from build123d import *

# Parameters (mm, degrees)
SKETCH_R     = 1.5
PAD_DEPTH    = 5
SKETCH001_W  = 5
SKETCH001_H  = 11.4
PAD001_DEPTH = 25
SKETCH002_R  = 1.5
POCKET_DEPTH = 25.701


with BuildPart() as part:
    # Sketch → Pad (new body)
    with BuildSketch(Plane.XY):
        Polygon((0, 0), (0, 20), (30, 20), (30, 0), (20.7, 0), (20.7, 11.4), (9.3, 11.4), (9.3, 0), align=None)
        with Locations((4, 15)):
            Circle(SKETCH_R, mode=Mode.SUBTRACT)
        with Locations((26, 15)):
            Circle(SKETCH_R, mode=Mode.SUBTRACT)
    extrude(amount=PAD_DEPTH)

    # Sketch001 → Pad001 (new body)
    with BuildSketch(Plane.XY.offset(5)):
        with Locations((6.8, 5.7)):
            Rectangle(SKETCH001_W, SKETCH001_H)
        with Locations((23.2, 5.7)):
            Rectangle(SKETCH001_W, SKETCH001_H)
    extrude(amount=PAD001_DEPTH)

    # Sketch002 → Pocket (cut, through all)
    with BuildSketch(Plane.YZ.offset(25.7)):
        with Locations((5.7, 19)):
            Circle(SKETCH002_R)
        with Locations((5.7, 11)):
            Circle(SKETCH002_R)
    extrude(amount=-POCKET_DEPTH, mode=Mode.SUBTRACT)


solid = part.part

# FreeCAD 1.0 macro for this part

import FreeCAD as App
import Part
import Sketcher
from FreeCAD import Vector
Q = App.Units.Quantity


def add_polygon(sketch, points):
    """Adds a closed chain of lines whose ends are joined by coincident constraints."""
    first, n = sketch.GeometryCount, len(points)
    for a, b in zip(points, points[1:] + points[:1]):
        sketch.addGeometry(Part.LineSegment(App.Vector(*a, 0), App.Vector(*b, 0)), False)
    for i in range(n):
        sketch.addConstraint(Sketcher.Constraint("Coincident", first + i, 2, first + (i + 1) % n, 1))

doc = App.newDocument("Part")
params = doc.addObject("Spreadsheet::Sheet", "Params")
for row, (alias, value) in enumerate([
    ("sketch1_diameter", "3 mm"),
    ("sketch1_width", "30 mm"),
    ("sketch1_height", "20 mm"),
    ("sketch1_width2", "9.3 mm"),
    ("pad1_length", "5 mm"),
    ("sketch2_width", "5 mm"),
    ("sketch2_height", "11.4 mm"),
    ("pad2_length", "25 mm"),
    ("sketch3_diameter", "3 mm"),
], start=1):
    params.set(f"A{row}", alias)
    params.set(f"B{row}", "=" + value)
    params.setAlias(f"B{row}", alias)

body = doc.addObject("PartDesign::Body", "Body")

# Sketch on XY plane
sketch1 = body.newObject("Sketcher::SketchObject", "Sketch")
sketch1.AttachmentSupport = (doc.getObject("XY_Plane"), [""])
sketch1.MapMode = "FlatFace"
add_polygon(sketch1, [(0, 20), (0, 0), (9.3, 0), (9.3, 11.4), (20.7, 11.4), (20.7, 0), (30, 0), (30, 20)])  # lines 0-7
sketch1.addGeometry(Part.Circle(Vector(26, 15, 0), Vector(0, 0, 1), 1.5), False)  # 8
sketch1.addGeometry(Part.Circle(Vector(4, 15, 0), Vector(0, 0, 1), 1.5), False)  # 9
sketch1.addConstraint([
    Sketcher.Constraint("Vertical", 0),
    Sketcher.Constraint("Horizontal", 1),
    Sketcher.Constraint("Vertical", 2),
    Sketcher.Constraint("Horizontal", 3),
    Sketcher.Constraint("Vertical", 4),
    Sketcher.Constraint("Horizontal", 5),
    Sketcher.Constraint("Vertical", 6),
    Sketcher.Constraint("Horizontal", 7),
    Sketcher.Constraint("Coincident", 0, 2, -1, 1),
    Sketcher.Constraint("Equal", 8, 9),
    Sketcher.Constraint("PointOnObject", 4, 2, -1),
    Sketcher.Constraint("Horizontal", 8, 3, 9, 3),
    Sketcher.Constraint("Equal", 1, 5),
    Sketcher.Constraint("Equal", 3, 2),
    Sketcher.Constraint("Diameter", 8, Q("3 mm")),
    Sketcher.Constraint("DistanceX", 7, 2, 7, 1, Q("30 mm")),
    Sketcher.Constraint("DistanceY", 0, 2, 0, 1, Q("20 mm")),
    Sketcher.Constraint("DistanceX", 1, 1, 1, 2, Q("9.3 mm")),
    Sketcher.Constraint("DistanceX", -1, 1, 8, 3, Q("26 mm")),
    Sketcher.Constraint("DistanceY", -1, 1, 8, 3, Q("15 mm")),
    Sketcher.Constraint("DistanceX", -1, 1, 9, 3, Q("4 mm")),
])
sketch1.setExpression("Constraints[22]", "Params.sketch1_diameter")
sketch1.setExpression("Constraints[23]", "Params.sketch1_width")
sketch1.setExpression("Constraints[24]", "Params.sketch1_height")
sketch1.setExpression("Constraints[25]", "Params.sketch1_width2")
pad1 = body.newObject("PartDesign::Pad", "Pad")
pad1.Profile = sketch1
pad1.setExpression("Length", "Params.pad1_length")

# Sketch on XY plane
sketch2 = body.newObject("Sketcher::SketchObject", "Sketch001")
sketch2.AttachmentSupport = (doc.getObject("XY_Plane"), [""])
sketch2.MapMode = "FlatFace"
sketch2.AttachmentOffset = App.Placement(Vector(0, 0, 5), App.Rotation())
add_polygon(sketch2, [(4, 11), (4, 0), (9, 0), (9, 11)])  # lines 0-3
add_polygon(sketch2, [(21, 11), (21, 0), (26, 0), (26, 11)])  # lines 4-7
sketch2.addConstraint([
    Sketcher.Constraint("Vertical", 0),
    Sketcher.Constraint("Horizontal", 1),
    Sketcher.Constraint("Vertical", 2),
    Sketcher.Constraint("Horizontal", 3),
    Sketcher.Constraint("Vertical", 4),
    Sketcher.Constraint("Horizontal", 5),
    Sketcher.Constraint("Vertical", 6),
    Sketcher.Constraint("Horizontal", 7),
    Sketcher.Constraint("PointOnObject", 0, 2, -1),
    Sketcher.Constraint("PointOnObject", 4, 2, -1),
    Sketcher.Constraint("Horizontal", 3, 2, 6, 2),
    Sketcher.Constraint("Equal", 3, 5),
    Sketcher.Constraint("DistanceX", 1, 1, 1, 2, Q("5 mm")),
    Sketcher.Constraint("DistanceY", 0, 2, 0, 1, Q("11.4 mm")),
    Sketcher.Constraint("DistanceX", -1, 1, 0, 2, Q("4.3 mm")),
    Sketcher.Constraint("DistanceX", -1, 1, 4, 2, Q("20.7 mm")),
])
sketch2.setExpression("Constraints[20]", "Params.sketch2_width")
sketch2.setExpression("Constraints[21]", "Params.sketch2_height")
pad2 = body.newObject("PartDesign::Pad", "Pad001")
pad2.Profile = sketch2
pad2.setExpression("Length", "Params.pad2_length")

# Sketch on YZ plane
sketch3 = body.newObject("Sketcher::SketchObject", "Sketch002")
sketch3.AttachmentSupport = (doc.getObject("YZ_Plane"), [""])
sketch3.MapMode = "FlatFace"
sketch3.AttachmentOffset = App.Placement(Vector(0, 0, 25.7), App.Rotation())
sketch3.addGeometry([
    Part.Circle(Vector(5.7, 19, 0), Vector(0, 0, 1), 1.5),
    Part.Circle(Vector(5.7, 11, 0), Vector(0, 0, 1), 1.5),
], False)
sketch3.addConstraint([
    Sketcher.Constraint("Equal", 0, 1),
    Sketcher.Constraint("Vertical", 0, 3, 1, 3),
    Sketcher.Constraint("Diameter", 0, Q("3 mm")),
    Sketcher.Constraint("DistanceY", -1, 1, 0, 3, Q("19 mm")),
    Sketcher.Constraint("DistanceY", -1, 1, 1, 3, Q("11 mm")),
    Sketcher.Constraint("DistanceX", -1, 1, 0, 3, Q("5.7 mm")),
])
sketch3.setExpression("Constraints[2]", "Params.sketch3_diameter")
pocket1 = body.newObject("PartDesign::Pocket", "Pocket")
pocket1.Profile = sketch3
pocket1.Type = "ThroughAll"

doc.recompute()
